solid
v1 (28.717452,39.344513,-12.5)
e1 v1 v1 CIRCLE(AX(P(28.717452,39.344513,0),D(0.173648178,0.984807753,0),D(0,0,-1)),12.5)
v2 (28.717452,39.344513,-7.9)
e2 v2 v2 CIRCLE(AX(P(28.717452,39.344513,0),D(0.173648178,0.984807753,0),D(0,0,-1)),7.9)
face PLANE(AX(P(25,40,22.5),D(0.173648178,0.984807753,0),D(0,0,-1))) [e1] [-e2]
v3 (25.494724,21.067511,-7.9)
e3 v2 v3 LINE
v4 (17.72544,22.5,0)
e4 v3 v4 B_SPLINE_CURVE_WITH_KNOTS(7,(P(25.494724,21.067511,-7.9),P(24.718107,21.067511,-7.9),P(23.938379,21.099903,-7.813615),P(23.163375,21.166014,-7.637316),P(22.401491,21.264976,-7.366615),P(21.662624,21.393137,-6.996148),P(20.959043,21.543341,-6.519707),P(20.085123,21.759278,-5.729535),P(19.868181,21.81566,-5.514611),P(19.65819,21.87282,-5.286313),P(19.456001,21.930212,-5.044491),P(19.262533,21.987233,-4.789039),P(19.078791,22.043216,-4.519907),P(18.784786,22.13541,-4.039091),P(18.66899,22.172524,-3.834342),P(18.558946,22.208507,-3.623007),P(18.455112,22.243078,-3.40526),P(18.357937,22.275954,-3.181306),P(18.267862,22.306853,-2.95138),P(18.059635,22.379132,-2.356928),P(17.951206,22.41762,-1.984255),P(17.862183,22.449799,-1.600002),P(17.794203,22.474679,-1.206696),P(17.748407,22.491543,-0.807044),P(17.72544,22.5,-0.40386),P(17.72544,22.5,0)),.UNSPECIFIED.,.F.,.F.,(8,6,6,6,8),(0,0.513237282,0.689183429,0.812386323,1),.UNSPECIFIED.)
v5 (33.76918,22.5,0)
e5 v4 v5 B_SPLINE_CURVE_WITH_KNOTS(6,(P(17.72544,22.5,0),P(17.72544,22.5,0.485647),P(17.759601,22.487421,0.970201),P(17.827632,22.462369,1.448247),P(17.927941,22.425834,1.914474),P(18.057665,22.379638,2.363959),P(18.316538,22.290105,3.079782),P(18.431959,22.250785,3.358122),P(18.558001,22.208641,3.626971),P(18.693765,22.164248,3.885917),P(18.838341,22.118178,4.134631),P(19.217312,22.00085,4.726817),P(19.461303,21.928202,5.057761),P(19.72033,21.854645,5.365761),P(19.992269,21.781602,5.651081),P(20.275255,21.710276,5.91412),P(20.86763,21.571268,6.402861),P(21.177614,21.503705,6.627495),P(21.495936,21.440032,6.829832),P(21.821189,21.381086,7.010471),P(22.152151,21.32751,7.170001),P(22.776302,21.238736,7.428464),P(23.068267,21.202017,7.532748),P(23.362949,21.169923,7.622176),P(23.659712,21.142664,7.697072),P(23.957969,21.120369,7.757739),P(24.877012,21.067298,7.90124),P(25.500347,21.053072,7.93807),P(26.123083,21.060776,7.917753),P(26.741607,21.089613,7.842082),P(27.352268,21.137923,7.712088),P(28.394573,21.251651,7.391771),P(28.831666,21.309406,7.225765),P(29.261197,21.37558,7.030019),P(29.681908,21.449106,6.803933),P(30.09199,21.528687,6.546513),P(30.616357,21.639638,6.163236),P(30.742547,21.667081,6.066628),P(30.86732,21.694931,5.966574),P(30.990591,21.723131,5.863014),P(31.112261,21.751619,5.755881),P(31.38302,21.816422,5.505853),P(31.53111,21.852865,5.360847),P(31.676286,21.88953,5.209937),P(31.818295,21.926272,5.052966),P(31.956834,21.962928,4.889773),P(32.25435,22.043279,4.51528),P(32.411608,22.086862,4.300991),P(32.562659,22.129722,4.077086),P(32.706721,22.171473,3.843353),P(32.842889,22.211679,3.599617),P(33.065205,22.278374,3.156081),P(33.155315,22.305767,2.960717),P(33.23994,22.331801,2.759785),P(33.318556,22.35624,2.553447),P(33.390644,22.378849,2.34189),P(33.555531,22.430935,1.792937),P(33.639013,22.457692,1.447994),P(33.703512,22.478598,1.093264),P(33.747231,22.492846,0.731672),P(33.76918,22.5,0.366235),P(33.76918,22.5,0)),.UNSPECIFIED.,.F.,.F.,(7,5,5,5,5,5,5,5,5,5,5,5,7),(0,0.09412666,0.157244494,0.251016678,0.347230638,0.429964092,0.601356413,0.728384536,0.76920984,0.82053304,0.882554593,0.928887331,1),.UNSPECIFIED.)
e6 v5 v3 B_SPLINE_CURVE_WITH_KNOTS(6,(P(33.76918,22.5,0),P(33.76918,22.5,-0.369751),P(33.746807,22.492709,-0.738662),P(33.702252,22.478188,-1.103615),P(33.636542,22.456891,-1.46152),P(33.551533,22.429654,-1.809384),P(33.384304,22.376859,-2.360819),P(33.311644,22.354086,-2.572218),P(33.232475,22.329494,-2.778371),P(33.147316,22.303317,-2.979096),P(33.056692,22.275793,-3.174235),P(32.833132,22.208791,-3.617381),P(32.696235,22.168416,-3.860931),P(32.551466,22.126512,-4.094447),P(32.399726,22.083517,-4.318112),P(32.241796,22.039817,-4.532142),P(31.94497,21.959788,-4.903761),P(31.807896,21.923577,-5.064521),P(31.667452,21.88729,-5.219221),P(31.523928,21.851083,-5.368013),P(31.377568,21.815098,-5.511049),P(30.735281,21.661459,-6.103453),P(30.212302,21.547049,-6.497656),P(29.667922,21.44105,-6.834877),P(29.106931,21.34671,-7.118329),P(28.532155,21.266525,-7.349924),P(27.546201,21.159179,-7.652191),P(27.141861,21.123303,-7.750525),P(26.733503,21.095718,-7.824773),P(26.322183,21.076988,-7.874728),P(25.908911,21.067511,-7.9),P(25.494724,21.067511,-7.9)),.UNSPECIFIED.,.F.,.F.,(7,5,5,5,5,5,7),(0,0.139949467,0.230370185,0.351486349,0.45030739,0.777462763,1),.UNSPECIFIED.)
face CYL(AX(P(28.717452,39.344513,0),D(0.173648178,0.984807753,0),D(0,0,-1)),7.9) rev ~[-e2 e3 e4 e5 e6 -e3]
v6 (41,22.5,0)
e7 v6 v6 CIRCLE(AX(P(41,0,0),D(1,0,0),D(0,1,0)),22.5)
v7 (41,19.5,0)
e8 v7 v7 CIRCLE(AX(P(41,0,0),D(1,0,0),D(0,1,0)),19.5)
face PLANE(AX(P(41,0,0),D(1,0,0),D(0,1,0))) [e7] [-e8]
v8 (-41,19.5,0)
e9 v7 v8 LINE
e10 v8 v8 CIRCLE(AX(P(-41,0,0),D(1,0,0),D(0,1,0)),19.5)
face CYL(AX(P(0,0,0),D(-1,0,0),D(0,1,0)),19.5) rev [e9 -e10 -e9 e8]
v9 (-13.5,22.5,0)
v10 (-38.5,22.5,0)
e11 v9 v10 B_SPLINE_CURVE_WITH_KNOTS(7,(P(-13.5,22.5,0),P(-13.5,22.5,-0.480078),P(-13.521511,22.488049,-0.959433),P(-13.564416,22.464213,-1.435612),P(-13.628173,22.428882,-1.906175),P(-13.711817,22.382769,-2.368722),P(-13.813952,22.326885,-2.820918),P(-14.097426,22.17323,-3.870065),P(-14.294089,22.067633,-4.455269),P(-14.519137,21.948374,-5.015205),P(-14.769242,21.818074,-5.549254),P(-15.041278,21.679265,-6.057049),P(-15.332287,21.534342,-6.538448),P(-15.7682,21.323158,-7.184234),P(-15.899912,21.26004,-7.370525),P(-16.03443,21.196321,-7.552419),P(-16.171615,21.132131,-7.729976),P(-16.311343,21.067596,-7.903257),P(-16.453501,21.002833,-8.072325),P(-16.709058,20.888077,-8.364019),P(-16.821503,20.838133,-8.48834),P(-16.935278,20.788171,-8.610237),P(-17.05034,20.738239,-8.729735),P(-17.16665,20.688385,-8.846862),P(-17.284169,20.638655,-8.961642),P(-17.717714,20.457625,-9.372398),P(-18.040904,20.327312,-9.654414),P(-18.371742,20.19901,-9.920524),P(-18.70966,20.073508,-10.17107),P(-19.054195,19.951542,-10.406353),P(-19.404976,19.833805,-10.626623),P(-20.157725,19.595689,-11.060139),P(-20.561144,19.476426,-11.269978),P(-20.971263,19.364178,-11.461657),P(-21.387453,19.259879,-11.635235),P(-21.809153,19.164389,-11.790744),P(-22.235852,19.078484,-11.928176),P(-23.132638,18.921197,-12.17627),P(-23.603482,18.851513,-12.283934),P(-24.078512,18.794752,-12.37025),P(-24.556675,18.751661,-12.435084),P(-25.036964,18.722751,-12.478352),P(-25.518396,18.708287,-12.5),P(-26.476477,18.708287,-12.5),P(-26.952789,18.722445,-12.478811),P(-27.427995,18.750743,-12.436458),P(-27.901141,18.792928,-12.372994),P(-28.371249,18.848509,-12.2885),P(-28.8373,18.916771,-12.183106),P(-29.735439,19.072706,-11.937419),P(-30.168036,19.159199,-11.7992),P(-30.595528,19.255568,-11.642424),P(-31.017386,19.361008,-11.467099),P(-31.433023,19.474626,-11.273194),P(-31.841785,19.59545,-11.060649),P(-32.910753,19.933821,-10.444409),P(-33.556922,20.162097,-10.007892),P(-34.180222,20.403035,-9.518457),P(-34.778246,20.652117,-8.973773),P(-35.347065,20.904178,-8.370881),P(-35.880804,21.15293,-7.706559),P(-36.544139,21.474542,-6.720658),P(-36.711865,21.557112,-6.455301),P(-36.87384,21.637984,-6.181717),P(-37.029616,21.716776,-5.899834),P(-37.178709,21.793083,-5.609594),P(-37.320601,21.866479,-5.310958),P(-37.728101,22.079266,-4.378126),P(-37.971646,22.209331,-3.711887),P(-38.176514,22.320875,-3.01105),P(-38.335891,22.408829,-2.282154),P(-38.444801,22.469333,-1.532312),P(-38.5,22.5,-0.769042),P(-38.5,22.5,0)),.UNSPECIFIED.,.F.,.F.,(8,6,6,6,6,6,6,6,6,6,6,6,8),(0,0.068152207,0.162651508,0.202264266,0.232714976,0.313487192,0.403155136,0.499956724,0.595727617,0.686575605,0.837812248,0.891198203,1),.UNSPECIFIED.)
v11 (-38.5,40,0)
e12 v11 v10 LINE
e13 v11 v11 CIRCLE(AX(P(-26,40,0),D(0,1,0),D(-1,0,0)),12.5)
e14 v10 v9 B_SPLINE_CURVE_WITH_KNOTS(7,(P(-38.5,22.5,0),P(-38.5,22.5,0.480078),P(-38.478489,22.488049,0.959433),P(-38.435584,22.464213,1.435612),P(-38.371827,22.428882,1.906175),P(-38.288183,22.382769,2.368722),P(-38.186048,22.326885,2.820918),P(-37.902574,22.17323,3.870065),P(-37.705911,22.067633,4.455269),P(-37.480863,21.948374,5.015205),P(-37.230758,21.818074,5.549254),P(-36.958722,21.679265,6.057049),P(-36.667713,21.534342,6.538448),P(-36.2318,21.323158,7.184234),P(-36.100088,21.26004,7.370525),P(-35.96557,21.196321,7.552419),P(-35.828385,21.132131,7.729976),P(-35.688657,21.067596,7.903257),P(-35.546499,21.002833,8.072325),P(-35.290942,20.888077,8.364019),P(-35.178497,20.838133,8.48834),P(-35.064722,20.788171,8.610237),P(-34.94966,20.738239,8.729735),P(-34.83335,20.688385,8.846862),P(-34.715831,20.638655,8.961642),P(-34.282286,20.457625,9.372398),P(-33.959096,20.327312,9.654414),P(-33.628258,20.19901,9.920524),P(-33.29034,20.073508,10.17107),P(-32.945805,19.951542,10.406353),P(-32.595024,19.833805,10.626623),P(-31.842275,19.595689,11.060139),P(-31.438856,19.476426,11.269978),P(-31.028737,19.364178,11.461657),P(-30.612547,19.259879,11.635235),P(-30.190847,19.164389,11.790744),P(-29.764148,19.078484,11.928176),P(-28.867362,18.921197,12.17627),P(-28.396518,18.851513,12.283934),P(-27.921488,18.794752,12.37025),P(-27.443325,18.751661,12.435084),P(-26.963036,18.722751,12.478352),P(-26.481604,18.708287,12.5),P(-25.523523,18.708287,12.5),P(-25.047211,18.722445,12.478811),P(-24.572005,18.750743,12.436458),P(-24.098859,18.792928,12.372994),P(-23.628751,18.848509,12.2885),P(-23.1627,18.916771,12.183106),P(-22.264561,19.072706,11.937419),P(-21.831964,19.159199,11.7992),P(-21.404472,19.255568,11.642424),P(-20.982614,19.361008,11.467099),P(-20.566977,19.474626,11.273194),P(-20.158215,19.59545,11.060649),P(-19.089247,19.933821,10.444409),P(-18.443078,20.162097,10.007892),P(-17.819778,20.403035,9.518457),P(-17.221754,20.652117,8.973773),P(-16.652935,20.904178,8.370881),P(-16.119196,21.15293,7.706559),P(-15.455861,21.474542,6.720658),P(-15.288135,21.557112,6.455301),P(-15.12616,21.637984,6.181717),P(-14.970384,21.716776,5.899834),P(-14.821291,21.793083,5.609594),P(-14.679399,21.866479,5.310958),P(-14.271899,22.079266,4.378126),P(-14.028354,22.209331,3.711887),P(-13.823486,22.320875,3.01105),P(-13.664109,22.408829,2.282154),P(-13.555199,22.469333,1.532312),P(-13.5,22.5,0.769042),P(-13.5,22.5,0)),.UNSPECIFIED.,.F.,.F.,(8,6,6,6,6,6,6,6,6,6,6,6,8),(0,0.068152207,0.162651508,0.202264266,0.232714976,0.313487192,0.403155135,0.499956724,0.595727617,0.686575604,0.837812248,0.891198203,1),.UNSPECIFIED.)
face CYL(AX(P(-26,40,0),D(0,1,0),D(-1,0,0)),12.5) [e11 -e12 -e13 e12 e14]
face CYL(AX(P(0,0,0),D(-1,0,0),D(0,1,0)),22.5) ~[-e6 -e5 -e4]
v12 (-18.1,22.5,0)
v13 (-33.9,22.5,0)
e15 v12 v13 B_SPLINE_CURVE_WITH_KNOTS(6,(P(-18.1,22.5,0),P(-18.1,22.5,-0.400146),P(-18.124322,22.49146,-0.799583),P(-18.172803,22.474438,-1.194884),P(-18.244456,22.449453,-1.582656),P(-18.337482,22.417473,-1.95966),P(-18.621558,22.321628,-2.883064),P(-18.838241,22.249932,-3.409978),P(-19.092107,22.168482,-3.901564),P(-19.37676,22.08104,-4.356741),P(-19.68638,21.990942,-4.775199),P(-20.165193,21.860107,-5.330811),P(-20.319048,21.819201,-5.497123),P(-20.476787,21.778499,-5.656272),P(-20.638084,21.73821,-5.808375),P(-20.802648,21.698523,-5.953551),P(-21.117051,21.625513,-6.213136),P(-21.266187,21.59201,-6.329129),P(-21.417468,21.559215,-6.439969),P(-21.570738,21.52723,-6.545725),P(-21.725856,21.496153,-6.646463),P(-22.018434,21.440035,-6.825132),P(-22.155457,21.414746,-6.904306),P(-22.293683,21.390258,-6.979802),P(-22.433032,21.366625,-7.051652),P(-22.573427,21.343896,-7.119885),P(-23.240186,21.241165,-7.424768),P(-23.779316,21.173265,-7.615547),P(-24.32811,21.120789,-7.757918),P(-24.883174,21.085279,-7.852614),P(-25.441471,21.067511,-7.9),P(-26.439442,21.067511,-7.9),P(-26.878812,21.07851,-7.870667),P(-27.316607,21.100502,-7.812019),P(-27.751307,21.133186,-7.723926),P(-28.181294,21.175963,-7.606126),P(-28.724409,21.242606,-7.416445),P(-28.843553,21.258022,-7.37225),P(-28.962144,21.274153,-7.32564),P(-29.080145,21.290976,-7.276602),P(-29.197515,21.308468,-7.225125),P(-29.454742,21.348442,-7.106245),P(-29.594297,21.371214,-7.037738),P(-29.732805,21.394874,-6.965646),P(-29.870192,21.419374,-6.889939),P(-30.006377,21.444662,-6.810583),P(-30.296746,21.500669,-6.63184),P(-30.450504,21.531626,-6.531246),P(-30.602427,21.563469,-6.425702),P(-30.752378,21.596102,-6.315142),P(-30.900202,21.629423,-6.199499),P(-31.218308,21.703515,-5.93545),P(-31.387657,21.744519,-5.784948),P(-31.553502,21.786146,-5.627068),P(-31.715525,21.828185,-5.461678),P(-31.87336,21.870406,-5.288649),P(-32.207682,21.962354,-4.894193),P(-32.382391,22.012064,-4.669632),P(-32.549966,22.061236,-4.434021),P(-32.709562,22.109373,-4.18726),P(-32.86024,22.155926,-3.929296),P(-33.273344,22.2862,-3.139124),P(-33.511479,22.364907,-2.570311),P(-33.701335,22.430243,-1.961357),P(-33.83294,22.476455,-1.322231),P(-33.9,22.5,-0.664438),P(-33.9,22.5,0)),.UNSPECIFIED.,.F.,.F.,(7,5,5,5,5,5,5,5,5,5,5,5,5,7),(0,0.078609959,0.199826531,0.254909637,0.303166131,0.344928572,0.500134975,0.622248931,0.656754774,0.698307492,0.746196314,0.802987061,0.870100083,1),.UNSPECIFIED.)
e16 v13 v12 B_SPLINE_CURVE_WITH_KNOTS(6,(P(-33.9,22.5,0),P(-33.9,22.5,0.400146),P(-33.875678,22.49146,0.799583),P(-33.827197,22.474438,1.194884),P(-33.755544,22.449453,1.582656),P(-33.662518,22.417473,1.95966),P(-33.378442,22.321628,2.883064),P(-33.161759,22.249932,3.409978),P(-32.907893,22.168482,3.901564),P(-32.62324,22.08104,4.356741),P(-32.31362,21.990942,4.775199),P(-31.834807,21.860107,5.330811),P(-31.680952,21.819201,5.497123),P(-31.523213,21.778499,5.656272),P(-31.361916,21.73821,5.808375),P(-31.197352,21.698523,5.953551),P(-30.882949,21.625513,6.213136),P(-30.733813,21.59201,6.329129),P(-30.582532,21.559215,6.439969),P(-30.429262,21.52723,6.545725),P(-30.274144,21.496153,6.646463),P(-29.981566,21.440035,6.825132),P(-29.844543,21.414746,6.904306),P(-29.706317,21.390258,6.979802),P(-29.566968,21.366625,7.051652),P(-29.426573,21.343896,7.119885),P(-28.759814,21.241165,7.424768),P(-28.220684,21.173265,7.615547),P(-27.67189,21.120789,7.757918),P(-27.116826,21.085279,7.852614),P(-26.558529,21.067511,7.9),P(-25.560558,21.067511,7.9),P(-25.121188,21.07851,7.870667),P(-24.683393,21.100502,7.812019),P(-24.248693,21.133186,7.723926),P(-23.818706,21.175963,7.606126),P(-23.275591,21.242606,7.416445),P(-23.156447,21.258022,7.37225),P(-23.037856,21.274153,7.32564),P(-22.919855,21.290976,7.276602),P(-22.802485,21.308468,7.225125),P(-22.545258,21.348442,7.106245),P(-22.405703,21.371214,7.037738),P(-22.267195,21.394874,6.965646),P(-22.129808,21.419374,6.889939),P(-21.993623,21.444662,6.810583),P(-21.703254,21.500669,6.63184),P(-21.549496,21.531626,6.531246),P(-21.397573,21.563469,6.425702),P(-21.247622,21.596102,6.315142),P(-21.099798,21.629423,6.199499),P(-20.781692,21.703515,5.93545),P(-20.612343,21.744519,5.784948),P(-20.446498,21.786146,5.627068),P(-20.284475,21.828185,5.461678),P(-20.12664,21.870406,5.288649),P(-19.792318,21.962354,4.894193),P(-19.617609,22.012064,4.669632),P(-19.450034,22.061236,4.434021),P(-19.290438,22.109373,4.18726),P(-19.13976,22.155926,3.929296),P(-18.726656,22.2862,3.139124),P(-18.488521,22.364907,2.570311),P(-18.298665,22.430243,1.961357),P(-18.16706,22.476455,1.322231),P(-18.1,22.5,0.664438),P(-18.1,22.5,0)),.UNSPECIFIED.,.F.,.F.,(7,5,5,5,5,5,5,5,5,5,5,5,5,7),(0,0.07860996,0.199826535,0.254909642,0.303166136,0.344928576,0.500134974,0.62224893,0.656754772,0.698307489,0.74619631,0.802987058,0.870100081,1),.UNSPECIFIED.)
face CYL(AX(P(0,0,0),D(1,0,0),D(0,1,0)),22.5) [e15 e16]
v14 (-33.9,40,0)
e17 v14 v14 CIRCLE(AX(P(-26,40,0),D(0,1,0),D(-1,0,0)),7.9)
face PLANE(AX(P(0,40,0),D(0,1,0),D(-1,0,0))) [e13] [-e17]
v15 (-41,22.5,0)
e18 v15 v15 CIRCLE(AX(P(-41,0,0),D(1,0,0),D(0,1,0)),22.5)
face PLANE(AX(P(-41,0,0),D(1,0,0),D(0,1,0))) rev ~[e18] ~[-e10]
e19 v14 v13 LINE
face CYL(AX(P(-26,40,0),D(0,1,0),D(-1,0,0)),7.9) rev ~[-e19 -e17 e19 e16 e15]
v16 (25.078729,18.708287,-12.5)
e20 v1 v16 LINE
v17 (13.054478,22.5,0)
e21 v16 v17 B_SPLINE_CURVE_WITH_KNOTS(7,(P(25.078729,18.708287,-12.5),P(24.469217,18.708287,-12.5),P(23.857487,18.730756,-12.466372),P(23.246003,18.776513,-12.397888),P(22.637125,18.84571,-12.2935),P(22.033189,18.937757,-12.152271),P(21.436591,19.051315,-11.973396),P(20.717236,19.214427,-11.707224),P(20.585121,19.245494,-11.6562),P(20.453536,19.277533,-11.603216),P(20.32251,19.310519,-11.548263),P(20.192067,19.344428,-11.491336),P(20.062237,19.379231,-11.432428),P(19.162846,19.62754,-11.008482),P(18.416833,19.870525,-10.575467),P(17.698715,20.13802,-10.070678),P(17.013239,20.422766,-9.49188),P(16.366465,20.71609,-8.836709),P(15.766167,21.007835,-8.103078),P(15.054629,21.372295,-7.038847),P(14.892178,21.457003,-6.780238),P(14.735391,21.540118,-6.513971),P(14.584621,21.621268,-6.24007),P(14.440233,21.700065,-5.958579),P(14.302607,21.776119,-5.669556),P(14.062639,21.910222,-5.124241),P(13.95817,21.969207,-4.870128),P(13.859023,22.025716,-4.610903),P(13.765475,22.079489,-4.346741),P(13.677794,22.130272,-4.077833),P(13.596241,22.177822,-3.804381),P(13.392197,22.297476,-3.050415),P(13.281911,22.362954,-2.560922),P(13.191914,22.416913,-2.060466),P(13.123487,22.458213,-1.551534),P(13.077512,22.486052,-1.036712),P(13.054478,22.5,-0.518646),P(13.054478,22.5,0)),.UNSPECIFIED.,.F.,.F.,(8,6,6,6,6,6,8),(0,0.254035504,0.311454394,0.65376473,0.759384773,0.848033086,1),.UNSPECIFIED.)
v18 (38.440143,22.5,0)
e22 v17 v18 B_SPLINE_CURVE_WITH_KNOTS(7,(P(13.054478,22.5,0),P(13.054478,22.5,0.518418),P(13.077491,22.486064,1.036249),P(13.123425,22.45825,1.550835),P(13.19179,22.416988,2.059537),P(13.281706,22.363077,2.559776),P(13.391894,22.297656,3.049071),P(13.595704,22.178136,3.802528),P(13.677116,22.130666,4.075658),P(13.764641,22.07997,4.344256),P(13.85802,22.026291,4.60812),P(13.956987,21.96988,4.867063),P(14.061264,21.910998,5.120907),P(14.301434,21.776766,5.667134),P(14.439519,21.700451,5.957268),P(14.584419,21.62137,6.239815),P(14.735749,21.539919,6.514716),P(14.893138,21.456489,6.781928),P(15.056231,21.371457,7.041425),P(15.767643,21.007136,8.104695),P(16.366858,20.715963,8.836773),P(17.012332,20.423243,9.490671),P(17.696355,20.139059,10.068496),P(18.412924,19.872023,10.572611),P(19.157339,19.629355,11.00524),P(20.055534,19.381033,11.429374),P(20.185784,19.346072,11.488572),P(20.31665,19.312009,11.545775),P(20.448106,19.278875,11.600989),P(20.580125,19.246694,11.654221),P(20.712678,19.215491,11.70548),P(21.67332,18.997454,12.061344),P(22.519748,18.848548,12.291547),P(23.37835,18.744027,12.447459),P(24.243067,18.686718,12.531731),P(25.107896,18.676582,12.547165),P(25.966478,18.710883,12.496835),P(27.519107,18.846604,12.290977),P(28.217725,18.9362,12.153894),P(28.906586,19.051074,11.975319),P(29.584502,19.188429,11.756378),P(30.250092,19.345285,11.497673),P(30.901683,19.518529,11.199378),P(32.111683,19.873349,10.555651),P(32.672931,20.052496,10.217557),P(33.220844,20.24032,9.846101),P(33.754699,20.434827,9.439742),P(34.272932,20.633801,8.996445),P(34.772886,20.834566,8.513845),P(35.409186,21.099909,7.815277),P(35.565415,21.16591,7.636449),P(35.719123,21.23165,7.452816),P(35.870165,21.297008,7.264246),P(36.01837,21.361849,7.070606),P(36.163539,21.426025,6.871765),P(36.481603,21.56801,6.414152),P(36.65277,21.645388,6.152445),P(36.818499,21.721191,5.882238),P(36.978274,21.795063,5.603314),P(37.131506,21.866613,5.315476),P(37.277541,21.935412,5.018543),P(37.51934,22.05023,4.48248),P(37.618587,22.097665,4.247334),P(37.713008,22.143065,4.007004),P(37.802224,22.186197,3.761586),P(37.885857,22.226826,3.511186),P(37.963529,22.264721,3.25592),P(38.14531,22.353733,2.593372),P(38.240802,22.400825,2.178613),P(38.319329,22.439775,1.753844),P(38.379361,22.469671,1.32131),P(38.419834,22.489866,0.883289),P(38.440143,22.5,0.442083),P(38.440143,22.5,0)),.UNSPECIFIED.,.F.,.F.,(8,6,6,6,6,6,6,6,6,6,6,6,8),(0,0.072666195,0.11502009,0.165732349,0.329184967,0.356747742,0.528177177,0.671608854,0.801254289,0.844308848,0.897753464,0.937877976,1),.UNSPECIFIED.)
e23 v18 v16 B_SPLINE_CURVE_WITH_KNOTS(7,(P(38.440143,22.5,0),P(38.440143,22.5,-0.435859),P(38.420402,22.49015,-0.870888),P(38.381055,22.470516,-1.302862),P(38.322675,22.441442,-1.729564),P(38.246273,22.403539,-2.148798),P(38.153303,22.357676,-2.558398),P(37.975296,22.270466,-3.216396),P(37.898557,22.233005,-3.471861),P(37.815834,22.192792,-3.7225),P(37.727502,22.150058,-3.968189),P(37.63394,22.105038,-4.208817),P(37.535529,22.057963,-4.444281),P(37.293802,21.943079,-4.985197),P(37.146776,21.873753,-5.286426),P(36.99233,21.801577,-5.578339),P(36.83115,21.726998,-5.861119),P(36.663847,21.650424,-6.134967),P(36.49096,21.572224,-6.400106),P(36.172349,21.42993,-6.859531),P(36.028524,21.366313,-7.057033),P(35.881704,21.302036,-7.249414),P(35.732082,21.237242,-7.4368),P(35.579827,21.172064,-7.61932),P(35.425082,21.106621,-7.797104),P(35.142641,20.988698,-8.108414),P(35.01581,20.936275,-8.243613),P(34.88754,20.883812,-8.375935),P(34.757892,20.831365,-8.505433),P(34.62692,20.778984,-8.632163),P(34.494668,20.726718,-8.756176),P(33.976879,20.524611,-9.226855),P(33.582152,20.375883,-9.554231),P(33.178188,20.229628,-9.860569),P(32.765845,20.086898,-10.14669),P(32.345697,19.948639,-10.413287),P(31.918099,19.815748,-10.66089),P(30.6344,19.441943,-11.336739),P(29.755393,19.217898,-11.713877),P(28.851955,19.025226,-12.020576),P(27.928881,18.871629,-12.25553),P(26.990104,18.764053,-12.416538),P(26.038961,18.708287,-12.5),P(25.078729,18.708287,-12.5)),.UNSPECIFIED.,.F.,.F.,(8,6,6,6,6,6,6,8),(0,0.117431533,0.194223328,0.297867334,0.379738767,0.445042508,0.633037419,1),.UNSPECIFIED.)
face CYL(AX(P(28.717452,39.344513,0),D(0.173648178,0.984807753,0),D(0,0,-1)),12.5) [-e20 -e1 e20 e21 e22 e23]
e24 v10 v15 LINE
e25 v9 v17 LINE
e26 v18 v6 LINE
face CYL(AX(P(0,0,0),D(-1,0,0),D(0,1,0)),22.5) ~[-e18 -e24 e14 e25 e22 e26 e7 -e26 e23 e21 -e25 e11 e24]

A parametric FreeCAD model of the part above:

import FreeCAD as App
import Part
import Sketcher

V = App.Vector
Q = App.Units.Quantity

doc = App.newDocument("Part")
body = doc.addObject("PartDesign::Body", "Body")

# Sketch on YZ plane
sketch1 = doc.addObject("Sketcher::SketchObject", "Sketch")
body.addObject(sketch1)
sketch1.AttachmentSupport = (doc.YZ_Plane, [""])
sketch1.MapMode = "FlatFace"
sketch1.addGeometry([
    Part.Circle(V(0, 0, 0), V(0, 0, 1), 22.5),
    Part.Circle(V(0, 0, 0), V(0, 0, 1), 19.5),
], False)
sketch1.addConstraint([
    Sketcher.Constraint("Coincident", 0, 3, -1, 1),
    Sketcher.Constraint("Coincident", 1, 3, -1, 1),
    Sketcher.Constraint("Diameter", 0, Q("45 mm")),
    Sketcher.Constraint("Diameter", 1, Q("39 mm")),
])
pad1 = doc.addObject("PartDesign::Pad", "Pad")
body.addObject(pad1)
pad1.Profile = sketch1
pad1.Length = 82
pad1.Midplane = True

# Sketch on XZ plane
sketch2 = doc.addObject("Sketcher::SketchObject", "Sketch001")
body.addObject(sketch2)
sketch2.AttachmentSupport = (doc.XZ_Plane, [""])
sketch2.MapMode = "FlatFace"
sketch2.AttachmentOffset = App.Placement(V(0, 0, -40), App.Rotation())
sketch2.addGeometry([
    Part.Circle(V(-26, 0, 0), V(0, 0, 1), 12.5),
    Part.Circle(V(-26, 0, 0), V(0, 0, 1), 7.9),
], False)
sketch2.addConstraint([
    Sketcher.Constraint("Coincident", 1, 3, 0, 3),
    Sketcher.Constraint("PointOnObject", 0, 3, -1),
    Sketcher.Constraint("Diameter", 0, Q("25 mm")),
    Sketcher.Constraint("Diameter", 1, Q("15.8 mm")),
    Sketcher.Constraint("DistanceX", 0, 3, -1, 1, Q("26 mm")),
])
pad2 = doc.addObject("PartDesign::Pad", "Pad001")
body.addObject(pad2)
pad2.Profile = sketch2
pad2.Type = "UpToFirst"

# Sketch on an angled plane
sketch3 = doc.addObject("Sketcher::SketchObject", "Sketch002")
body.addObject(sketch3)
sketch3.Placement = App.Placement(V(25, 40, 22.5), App.Rotation(V(0, 0, -1), V(-0.984807753, 0.173648178, 0), V(0.173648178, 0.984807753, 0), "ZXY"))
sketch3.addGeometry([
    Part.Circle(V(22.5, -3.7748, 0), V(0, 0, 1), 12.5),
    Part.Circle(V(22.5, -3.7748, 0), V(0, 0, 1), 7.9),
], False)
sketch3.addConstraint([
    Sketcher.Constraint("Coincident", 1, 3, 0, 3),
    Sketcher.Constraint("Diameter", 0, Q("25 mm")),
    Sketcher.Constraint("Diameter", 1, Q("15.8 mm")),
    Sketcher.Constraint("DistanceX", -1, 1, 0, 3, Q("22.5 mm")),
    Sketcher.Constraint("DistanceY", 0, 3, -1, 1, Q("3.7748 mm")),
])
pad3 = doc.addObject("PartDesign::Pad", "Pad002")
body.addObject(pad3)
pad3.Profile = sketch3
pad3.Type = "UpToFirst"
pad3.Reversed = True

doc.recompute()
